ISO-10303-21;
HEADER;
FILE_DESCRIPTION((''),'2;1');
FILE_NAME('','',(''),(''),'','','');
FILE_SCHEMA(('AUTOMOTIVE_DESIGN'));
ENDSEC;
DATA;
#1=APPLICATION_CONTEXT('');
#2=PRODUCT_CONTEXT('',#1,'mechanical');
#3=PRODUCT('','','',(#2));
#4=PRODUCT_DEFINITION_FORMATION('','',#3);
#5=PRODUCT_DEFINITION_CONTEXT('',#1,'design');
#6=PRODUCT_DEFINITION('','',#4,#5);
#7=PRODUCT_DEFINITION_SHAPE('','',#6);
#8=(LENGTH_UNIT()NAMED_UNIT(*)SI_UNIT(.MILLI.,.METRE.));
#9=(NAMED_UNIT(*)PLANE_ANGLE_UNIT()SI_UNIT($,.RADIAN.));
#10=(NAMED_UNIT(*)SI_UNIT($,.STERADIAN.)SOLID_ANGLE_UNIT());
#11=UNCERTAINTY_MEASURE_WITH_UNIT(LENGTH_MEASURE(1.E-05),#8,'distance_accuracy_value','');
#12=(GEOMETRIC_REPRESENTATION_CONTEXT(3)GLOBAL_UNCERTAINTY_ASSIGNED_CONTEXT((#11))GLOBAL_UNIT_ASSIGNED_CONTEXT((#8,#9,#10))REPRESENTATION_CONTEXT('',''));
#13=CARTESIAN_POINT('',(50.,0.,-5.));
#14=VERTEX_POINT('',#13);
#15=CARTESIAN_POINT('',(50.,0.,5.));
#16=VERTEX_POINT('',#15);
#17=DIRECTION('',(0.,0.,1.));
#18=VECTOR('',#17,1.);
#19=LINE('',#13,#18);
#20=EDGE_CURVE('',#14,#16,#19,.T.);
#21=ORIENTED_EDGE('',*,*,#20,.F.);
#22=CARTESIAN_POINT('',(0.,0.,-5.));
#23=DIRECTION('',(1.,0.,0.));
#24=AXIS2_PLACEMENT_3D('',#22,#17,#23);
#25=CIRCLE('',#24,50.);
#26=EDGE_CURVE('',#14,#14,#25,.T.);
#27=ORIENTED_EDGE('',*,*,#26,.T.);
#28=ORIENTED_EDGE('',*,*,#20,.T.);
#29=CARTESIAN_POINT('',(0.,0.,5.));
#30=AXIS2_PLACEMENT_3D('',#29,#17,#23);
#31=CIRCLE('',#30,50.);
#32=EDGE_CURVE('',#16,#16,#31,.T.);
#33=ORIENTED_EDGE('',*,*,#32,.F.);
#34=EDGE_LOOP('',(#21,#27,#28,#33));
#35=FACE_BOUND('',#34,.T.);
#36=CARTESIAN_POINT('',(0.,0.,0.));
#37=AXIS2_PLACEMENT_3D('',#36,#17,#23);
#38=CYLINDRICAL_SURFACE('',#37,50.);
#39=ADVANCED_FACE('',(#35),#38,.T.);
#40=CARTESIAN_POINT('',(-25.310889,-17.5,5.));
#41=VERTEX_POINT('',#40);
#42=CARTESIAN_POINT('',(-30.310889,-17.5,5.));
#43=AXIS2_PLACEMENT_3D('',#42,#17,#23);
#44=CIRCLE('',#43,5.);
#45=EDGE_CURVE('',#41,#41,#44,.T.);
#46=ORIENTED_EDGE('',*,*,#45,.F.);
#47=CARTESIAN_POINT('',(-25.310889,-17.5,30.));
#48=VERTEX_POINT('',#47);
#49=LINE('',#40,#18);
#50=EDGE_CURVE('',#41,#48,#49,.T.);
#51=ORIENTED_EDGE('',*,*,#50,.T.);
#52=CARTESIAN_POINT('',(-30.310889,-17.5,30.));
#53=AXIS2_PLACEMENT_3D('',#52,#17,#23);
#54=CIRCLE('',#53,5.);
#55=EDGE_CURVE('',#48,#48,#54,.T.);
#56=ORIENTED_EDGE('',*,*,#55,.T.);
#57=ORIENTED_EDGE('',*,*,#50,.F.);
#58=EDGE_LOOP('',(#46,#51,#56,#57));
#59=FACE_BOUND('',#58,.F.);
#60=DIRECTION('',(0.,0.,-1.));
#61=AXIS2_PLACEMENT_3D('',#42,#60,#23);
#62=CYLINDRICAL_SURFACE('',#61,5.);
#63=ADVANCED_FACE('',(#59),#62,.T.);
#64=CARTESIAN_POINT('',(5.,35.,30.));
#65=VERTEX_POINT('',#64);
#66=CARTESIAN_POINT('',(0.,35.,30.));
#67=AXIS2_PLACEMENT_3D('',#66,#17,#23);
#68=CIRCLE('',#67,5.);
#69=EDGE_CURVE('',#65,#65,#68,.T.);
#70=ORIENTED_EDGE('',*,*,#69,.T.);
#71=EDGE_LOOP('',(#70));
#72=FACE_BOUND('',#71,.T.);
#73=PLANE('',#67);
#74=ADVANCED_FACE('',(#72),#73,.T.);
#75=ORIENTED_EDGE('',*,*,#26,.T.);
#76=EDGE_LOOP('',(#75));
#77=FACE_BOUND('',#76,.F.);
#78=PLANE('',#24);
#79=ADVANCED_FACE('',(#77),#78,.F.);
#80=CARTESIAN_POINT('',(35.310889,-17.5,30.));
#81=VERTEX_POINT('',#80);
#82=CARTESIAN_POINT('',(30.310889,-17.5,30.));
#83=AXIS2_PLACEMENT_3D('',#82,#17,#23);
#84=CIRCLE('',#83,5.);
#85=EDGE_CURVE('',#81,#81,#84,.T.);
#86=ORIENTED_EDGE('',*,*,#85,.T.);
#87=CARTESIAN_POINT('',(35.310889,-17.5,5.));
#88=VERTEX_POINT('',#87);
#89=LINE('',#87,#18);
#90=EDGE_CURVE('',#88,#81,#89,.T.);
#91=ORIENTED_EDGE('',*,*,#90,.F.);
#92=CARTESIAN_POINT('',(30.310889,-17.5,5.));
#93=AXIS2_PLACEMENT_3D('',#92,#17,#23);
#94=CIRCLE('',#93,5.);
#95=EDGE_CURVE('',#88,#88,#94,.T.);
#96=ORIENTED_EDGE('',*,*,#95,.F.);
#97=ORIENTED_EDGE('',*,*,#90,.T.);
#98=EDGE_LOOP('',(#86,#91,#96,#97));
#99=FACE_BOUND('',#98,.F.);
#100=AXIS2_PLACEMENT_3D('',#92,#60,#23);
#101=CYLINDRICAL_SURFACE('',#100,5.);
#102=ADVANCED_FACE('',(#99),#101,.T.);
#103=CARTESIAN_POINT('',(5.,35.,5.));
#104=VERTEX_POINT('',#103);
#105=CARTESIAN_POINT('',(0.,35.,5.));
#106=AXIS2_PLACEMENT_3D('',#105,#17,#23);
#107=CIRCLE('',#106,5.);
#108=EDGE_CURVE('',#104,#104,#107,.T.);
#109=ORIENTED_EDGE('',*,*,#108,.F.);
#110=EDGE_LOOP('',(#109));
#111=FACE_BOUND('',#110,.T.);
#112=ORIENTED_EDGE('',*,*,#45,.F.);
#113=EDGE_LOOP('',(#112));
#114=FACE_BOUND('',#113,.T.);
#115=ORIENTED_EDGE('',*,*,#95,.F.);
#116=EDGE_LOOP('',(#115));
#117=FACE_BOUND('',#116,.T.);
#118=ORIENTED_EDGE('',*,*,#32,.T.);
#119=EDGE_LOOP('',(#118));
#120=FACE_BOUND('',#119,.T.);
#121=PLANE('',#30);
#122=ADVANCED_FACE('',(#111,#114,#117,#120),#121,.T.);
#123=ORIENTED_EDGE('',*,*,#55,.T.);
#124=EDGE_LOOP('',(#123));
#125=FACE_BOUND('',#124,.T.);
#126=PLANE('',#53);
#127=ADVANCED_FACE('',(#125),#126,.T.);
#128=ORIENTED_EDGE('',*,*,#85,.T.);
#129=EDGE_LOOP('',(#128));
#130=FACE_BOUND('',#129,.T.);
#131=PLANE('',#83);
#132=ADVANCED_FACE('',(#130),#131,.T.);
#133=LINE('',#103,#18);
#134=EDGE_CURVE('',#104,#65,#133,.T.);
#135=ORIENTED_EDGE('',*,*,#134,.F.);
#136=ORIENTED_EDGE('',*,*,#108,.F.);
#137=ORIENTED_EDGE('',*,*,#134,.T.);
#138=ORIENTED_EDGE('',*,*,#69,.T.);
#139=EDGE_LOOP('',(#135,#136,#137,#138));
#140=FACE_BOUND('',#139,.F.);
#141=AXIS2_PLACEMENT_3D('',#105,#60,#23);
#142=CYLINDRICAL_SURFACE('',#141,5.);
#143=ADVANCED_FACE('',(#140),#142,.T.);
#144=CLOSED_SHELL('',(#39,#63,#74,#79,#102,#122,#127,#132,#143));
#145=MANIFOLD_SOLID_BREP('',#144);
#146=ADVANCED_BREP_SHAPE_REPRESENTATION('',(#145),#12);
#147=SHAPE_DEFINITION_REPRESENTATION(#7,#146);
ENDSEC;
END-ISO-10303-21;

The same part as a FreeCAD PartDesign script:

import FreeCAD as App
import Part
import Sketcher
from FreeCAD import Vector
Q = App.Units.Quantity

doc = App.newDocument("Part")
body = doc.addObject("PartDesign::Body", "Body")

sketch1 = doc.addObject("Sketcher::SketchObject", "Sketch")
body.addObject(sketch1)
sketch1.AttachmentSupport = (doc.XY_Plane, [""])
sketch1.MapMode = "FlatFace"
sketch1.addGeometry(Part.Circle(Vector(0, 0, 0), Vector(0, 0, 1), 50), False)
sketch1.addConstraint(Sketcher.Constraint("Coincident", 0, 3, -1, 1))
sketch1.addConstraint(Sketcher.Constraint("Diameter", 0, Q("100 mm")))
pad1 = doc.addObject("PartDesign::Pad", "Pad")
body.addObject(pad1)
pad1.Profile = sketch1
pad1.Length = 10
pad1.Midplane = True

sketch2 = doc.addObject("Sketcher::SketchObject", "Sketch001")
body.addObject(sketch2)
sketch2.AttachmentSupport = (doc.XY_Plane, [""])
sketch2.MapMode = "FlatFace"
sketch2.AttachmentOffset = App.Placement(Vector(0, 0, 5), App.Rotation())
sketch2.addGeometry(Part.Circle(Vector(0, 35, 0), Vector(0, 0, 1), 5), False)
sketch2.addGeometry(Part.Circle(Vector(30, -18, 0), Vector(0, 0, 1), 5), False)
sketch2.addGeometry(Part.Circle(Vector(-30, -18, 0), Vector(0, 0, 1), 5), False)
sketch2.addConstraint(Sketcher.Constraint("Equal", 0, 1))
sketch2.addConstraint(Sketcher.Constraint("Equal", 1, 2))
sketch2.addConstraint(Sketcher.Constraint("Symmetric", 1, 3, 2, 3, -2))
sketch2.addConstraint(Sketcher.Constraint("PointOnObject", 0, 3, -2))
sketch2.addConstraint(Sketcher.Constraint("Diameter", 0, Q("10 mm")))
sketch2.addConstraint(Sketcher.Constraint("DistanceY", -1, 1, 0, 3, Q("35 mm")))
sketch2.addConstraint(Sketcher.Constraint("DistanceY", 1, 3, -1, 1, Q("17.5 mm")))
sketch2.addConstraint(Sketcher.Constraint("DistanceX", -1, 1, 1, 3, Q("30.310889 mm")))
pad2 = doc.addObject("PartDesign::Pad", "Pad001")
body.addObject(pad2)
pad2.Profile = sketch2
pad2.Length = 25

doc.recompute()
